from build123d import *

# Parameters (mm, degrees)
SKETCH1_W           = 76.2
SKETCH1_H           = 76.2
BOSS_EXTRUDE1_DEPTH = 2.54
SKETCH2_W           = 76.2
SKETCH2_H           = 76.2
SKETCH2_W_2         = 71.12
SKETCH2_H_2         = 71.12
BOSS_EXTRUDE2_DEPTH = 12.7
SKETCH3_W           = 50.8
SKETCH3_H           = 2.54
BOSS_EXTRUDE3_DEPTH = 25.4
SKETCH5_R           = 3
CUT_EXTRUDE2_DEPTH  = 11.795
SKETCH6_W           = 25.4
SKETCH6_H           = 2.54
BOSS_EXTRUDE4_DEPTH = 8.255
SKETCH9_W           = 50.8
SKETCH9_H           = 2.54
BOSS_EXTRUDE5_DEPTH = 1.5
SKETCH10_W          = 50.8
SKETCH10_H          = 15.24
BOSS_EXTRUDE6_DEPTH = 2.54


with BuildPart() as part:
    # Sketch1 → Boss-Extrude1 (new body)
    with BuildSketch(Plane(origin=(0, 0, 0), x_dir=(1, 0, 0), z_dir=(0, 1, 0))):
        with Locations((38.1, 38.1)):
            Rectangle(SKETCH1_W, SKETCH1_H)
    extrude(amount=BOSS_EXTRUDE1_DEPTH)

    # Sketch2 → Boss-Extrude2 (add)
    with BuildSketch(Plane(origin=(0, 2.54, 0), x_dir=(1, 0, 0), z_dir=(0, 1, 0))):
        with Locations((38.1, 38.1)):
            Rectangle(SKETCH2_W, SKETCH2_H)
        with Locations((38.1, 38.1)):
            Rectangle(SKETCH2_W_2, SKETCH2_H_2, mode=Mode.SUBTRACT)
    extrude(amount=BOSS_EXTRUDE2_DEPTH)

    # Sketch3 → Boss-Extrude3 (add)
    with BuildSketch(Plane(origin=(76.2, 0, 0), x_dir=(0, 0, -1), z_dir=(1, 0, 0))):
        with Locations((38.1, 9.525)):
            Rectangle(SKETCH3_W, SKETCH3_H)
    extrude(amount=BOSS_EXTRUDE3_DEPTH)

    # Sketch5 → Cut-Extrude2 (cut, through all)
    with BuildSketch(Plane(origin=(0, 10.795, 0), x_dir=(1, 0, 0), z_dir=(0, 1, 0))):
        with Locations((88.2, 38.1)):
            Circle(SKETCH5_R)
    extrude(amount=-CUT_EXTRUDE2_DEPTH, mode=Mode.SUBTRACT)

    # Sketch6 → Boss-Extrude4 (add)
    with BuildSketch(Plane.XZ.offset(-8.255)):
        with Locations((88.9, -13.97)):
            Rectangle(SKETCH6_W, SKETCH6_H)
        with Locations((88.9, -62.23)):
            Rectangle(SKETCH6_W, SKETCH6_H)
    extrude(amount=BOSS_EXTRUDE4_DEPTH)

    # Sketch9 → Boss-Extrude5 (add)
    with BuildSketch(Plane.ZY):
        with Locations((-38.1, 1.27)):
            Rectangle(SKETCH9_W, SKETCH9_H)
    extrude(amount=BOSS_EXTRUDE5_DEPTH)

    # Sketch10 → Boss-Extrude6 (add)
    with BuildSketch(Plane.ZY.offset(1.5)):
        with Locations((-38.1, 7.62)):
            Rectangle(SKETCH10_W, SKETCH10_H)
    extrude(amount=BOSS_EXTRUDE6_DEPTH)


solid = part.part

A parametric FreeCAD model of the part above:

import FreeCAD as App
import Part
import Sketcher

V = App.Vector
Q = App.Units.Quantity


def add_polygon(sketch, points):
    """Adds a closed chain of lines whose ends are joined by coincident constraints."""
    first, n = sketch.GeometryCount, len(points)
    for a, b in zip(points, points[1:] + points[:1]):
        sketch.addGeometry(Part.LineSegment(App.Vector(*a, 0), App.Vector(*b, 0)), False)
    for i in range(n):
        sketch.addConstraint(Sketcher.Constraint("Coincident", first + i, 2, first + (i + 1) % n, 1))

doc = App.newDocument("Part")
body = doc.addObject("PartDesign::Body", "Body")

# Sketch on XZ plane
sketch1 = body.newObject("Sketcher::SketchObject", "Sketch")
sketch1.AttachmentSupport = (doc.getObject("XZ_Plane"), [""])
sketch1.MapMode = "FlatFace"
add_polygon(sketch1, [(0, -76), (0, 0), (76, 0), (76, -76)])  # lines 0-3
sketch1.addConstraint(Sketcher.Constraint("Vertical", 0))
sketch1.addConstraint(Sketcher.Constraint("Horizontal", 1))
sketch1.addConstraint(Sketcher.Constraint("Vertical", 2))
sketch1.addConstraint(Sketcher.Constraint("Horizontal", 3))
sketch1.addConstraint(Sketcher.Constraint("Coincident", 0, 2, -1, 1))
sketch1.addConstraint(Sketcher.Constraint("Equal", 3, 0))
sketch1.addConstraint(Sketcher.Constraint("DistanceX", 1, 1, 1, 2, Q("3 in")))
pad1 = body.newObject("PartDesign::Pad", "Pad")
pad1.Profile = sketch1
pad1.Length = Q("0.1 in")
pad1.Reversed = True

# Sketch on XZ plane
sketch2 = body.newObject("Sketcher::SketchObject", "Sketch001")
sketch2.AttachmentSupport = (doc.getObject("XZ_Plane"), [""])
sketch2.MapMode = "FlatFace"
sketch2.AttachmentOffset = App.Placement(V(0, 0, -0.1 * 25.4), App.Rotation())
add_polygon(sketch2, [(0, -76), (0, 0), (76, 0), (76, -76)])  # lines 0-3
add_polygon(sketch2, [(74, -3), (3, -3), (3, -74), (74, -74)])  # lines 4-7
sketch2.addConstraint(Sketcher.Constraint("Vertical", 0))
sketch2.addConstraint(Sketcher.Constraint("Horizontal", 1))
sketch2.addConstraint(Sketcher.Constraint("Vertical", 2))
sketch2.addConstraint(Sketcher.Constraint("Horizontal", 3))
sketch2.addConstraint(Sketcher.Constraint("Horizontal", 4))
sketch2.addConstraint(Sketcher.Constraint("Vertical", 5))
sketch2.addConstraint(Sketcher.Constraint("Horizontal", 6))
sketch2.addConstraint(Sketcher.Constraint("Vertical", 7))
sketch2.addConstraint(Sketcher.Constraint("Coincident", 0, 2, -1, 1))
sketch2.addConstraint(Sketcher.Constraint("Equal", 3, 0))
sketch2.addConstraint(Sketcher.Constraint("Equal", 6, 5))
sketch2.addConstraint(Sketcher.Constraint("DistanceX", 1, 1, 1, 2, Q("3 in")))
sketch2.addConstraint(Sketcher.Constraint("DistanceX", 4, 2, 4, 1, Q("2.8 in")))
sketch2.addConstraint(Sketcher.Constraint("DistanceX", -1, 1, 4, 2, Q("0.1 in")))
sketch2.addConstraint(Sketcher.Constraint("DistanceY", 4, 2, -1, 1, Q("0.1 in")))
pad2 = body.newObject("PartDesign::Pad", "Pad001")
pad2.Profile = sketch2
pad2.Length = Q("0.5 in")
pad2.Reversed = True

# Sketch on YZ plane
sketch3 = body.newObject("Sketcher::SketchObject", "Sketch002")
sketch3.AttachmentSupport = (doc.getObject("YZ_Plane"), [""])
sketch3.MapMode = "FlatFace"
sketch3.AttachmentOffset = App.Placement(V(0, 0, 3 * 25.4), App.Rotation())
add_polygon(sketch3, [(10.8, -12.7), (8.3, -12.7), (8.3, -63.5), (10.8, -63.5)])  # lines 0-3
sketch3.addConstraint(Sketcher.Constraint("Horizontal", 0))
sketch3.addConstraint(Sketcher.Constraint("Vertical", 1))
sketch3.addConstraint(Sketcher.Constraint("Horizontal", 2))
sketch3.addConstraint(Sketcher.Constraint("Vertical", 3))
sketch3.addConstraint(Sketcher.Constraint("DistanceY", 1, 2, 1, 1, Q("2 in")))
sketch3.addConstraint(Sketcher.Constraint("DistanceX", 0, 2, 0, 1, Q("0.1 in")))
sketch3.addConstraint(Sketcher.Constraint("DistanceY", 0, 2, -1, 1, Q("0.5 in")))
sketch3.addConstraint(Sketcher.Constraint("DistanceX", -1, 1, 0, 2, Q("0.325 in")))
pad3 = body.newObject("PartDesign::Pad", "Pad002")
pad3.Profile = sketch3
pad3.Length = Q("1 in")

# Sketch on XZ plane
sketch4 = body.newObject("Sketcher::SketchObject", "Sketch003")
sketch4.AttachmentSupport = (doc.getObject("XZ_Plane"), [""])
sketch4.MapMode = "FlatFace"
sketch4.AttachmentOffset = App.Placement(V(0, 0, -0.425 * 25.4), App.Rotation())
sketch4.addGeometry(Part.Circle(V(88.2, -38.1, 0), V(0, 0, 1), 3), False)
sketch4.addConstraint(Sketcher.Constraint("DistanceY", 0, 3, -1, 1, Q("1.5 in")))
sketch4.addConstraint(Sketcher.Constraint("Diameter", 0, Q("6 mm")))
sketch4.addConstraint(Sketcher.Constraint("DistanceX", -1, 1, 0, 3, Q("88.2 mm")))
pocket1 = body.newObject("PartDesign::Pocket", "Pocket")
pocket1.Profile = sketch4
pocket1.Type = "ThroughAll"
pocket1.Reversed = True

# Sketch on XZ plane
sketch5 = body.newObject("Sketcher::SketchObject", "Sketch004")
sketch5.AttachmentSupport = (doc.getObject("XZ_Plane"), [""])
sketch5.MapMode = "FlatFace"
sketch5.AttachmentOffset = App.Placement(V(0, 0, -0.325 * 25.4), App.Rotation())
add_polygon(sketch5, [(76.2, -12.7), (76.2, -15.2), (101.6, -15.2), (101.6, -12.7)])  # lines 0-3
add_polygon(sketch5, [(76.2, -61), (76.2, -63.5), (101.6, -63.5), (101.6, -61)])  # lines 4-7
sketch5.addConstraint(Sketcher.Constraint("Vertical", 0))
sketch5.addConstraint(Sketcher.Constraint("Horizontal", 1))
sketch5.addConstraint(Sketcher.Constraint("Vertical", 2))
sketch5.addConstraint(Sketcher.Constraint("Horizontal", 3))
sketch5.addConstraint(Sketcher.Constraint("Vertical", 4))
sketch5.addConstraint(Sketcher.Constraint("Horizontal", 5))
sketch5.addConstraint(Sketcher.Constraint("Vertical", 6))
sketch5.addConstraint(Sketcher.Constraint("Horizontal", 7))
sketch5.addConstraint(Sketcher.Constraint("Vertical", 3, 2, 4, 2))
sketch5.addConstraint(Sketcher.Constraint("Vertical", 2, 2, 5, 2))
sketch5.addConstraint(Sketcher.Constraint("Equal", 2, 4))
sketch5.addConstraint(Sketcher.Constraint("DistanceX", 1, 1, 1, 2, Q("1 in")))
sketch5.addConstraint(Sketcher.Constraint("DistanceY", 0, 2, 0, 1, Q("0.1 in")))
sketch5.addConstraint(Sketcher.Constraint("DistanceX", -1, 1, 0, 2, Q("3 in")))
sketch5.addConstraint(Sketcher.Constraint("DistanceY", 4, 2, 3, 2, Q("2 in")))
sketch5.addConstraint(Sketcher.Constraint("DistanceY", 0, 2, -1, 1, Q("0.6 in")))
pad4 = body.newObject("PartDesign::Pad", "Pad003")
pad4.Profile = sketch5
pad4.Length = Q("0.325 in")

# Sketch on YZ plane
sketch6 = body.newObject("Sketcher::SketchObject", "Sketch005")
sketch6.AttachmentSupport = (doc.getObject("YZ_Plane"), [""])
sketch6.MapMode = "FlatFace"
add_polygon(sketch6, [(2.5, -63.5), (0, -63.5), (0, -12.7), (2.5, -12.7)])  # lines 0-3
sketch6.addConstraint(Sketcher.Constraint("Horizontal", 0))
sketch6.addConstraint(Sketcher.Constraint("Vertical", 1))
sketch6.addConstraint(Sketcher.Constraint("Horizontal", 2))
sketch6.addConstraint(Sketcher.Constraint("Vertical", 3))
sketch6.addConstraint(Sketcher.Constraint("PointOnObject", 0, 2, -2))
sketch6.addConstraint(Sketcher.Constraint("DistanceY", 1, 1, 1, 2, Q("2 in")))
sketch6.addConstraint(Sketcher.Constraint("DistanceX", 0, 2, 0, 1, Q("0.1 in")))
sketch6.addConstraint(Sketcher.Constraint("DistanceY", 0, 2, -1, 1, Q("2.5 in")))
pad5 = body.newObject("PartDesign::Pad", "Pad004")
pad5.Profile = sketch6
pad5.Length = 1.5
pad5.Reversed = True

# Sketch on YZ plane
sketch7 = body.newObject("Sketcher::SketchObject", "Sketch006")
sketch7.AttachmentSupport = (doc.getObject("YZ_Plane"), [""])
sketch7.MapMode = "FlatFace"
sketch7.AttachmentOffset = App.Placement(V(0, 0, -1.5), App.Rotation())
add_polygon(sketch7, [(15, -64), (0, -64), (0, -13), (15, -13)])  # lines 0-3
sketch7.addConstraint(Sketcher.Constraint("Horizontal", 0))
sketch7.addConstraint(Sketcher.Constraint("Vertical", 1))
sketch7.addConstraint(Sketcher.Constraint("Horizontal", 2))
sketch7.addConstraint(Sketcher.Constraint("Vertical", 3))
sketch7.addConstraint(Sketcher.Constraint("PointOnObject", 0, 2, -2))
sketch7.addConstraint(Sketcher.Constraint("DistanceY", 1, 1, 1, 2, Q("2 in")))
sketch7.addConstraint(Sketcher.Constraint("DistanceX", 0, 2, 0, 1, Q("0.6 in")))
sketch7.addConstraint(Sketcher.Constraint("DistanceY", 0, 2, -1, 1, Q("2.5 in")))
pad6 = body.newObject("PartDesign::Pad", "Pad005")
pad6.Profile = sketch7
pad6.Length = Q("0.1 in")
pad6.Reversed = True

doc.recompute()
